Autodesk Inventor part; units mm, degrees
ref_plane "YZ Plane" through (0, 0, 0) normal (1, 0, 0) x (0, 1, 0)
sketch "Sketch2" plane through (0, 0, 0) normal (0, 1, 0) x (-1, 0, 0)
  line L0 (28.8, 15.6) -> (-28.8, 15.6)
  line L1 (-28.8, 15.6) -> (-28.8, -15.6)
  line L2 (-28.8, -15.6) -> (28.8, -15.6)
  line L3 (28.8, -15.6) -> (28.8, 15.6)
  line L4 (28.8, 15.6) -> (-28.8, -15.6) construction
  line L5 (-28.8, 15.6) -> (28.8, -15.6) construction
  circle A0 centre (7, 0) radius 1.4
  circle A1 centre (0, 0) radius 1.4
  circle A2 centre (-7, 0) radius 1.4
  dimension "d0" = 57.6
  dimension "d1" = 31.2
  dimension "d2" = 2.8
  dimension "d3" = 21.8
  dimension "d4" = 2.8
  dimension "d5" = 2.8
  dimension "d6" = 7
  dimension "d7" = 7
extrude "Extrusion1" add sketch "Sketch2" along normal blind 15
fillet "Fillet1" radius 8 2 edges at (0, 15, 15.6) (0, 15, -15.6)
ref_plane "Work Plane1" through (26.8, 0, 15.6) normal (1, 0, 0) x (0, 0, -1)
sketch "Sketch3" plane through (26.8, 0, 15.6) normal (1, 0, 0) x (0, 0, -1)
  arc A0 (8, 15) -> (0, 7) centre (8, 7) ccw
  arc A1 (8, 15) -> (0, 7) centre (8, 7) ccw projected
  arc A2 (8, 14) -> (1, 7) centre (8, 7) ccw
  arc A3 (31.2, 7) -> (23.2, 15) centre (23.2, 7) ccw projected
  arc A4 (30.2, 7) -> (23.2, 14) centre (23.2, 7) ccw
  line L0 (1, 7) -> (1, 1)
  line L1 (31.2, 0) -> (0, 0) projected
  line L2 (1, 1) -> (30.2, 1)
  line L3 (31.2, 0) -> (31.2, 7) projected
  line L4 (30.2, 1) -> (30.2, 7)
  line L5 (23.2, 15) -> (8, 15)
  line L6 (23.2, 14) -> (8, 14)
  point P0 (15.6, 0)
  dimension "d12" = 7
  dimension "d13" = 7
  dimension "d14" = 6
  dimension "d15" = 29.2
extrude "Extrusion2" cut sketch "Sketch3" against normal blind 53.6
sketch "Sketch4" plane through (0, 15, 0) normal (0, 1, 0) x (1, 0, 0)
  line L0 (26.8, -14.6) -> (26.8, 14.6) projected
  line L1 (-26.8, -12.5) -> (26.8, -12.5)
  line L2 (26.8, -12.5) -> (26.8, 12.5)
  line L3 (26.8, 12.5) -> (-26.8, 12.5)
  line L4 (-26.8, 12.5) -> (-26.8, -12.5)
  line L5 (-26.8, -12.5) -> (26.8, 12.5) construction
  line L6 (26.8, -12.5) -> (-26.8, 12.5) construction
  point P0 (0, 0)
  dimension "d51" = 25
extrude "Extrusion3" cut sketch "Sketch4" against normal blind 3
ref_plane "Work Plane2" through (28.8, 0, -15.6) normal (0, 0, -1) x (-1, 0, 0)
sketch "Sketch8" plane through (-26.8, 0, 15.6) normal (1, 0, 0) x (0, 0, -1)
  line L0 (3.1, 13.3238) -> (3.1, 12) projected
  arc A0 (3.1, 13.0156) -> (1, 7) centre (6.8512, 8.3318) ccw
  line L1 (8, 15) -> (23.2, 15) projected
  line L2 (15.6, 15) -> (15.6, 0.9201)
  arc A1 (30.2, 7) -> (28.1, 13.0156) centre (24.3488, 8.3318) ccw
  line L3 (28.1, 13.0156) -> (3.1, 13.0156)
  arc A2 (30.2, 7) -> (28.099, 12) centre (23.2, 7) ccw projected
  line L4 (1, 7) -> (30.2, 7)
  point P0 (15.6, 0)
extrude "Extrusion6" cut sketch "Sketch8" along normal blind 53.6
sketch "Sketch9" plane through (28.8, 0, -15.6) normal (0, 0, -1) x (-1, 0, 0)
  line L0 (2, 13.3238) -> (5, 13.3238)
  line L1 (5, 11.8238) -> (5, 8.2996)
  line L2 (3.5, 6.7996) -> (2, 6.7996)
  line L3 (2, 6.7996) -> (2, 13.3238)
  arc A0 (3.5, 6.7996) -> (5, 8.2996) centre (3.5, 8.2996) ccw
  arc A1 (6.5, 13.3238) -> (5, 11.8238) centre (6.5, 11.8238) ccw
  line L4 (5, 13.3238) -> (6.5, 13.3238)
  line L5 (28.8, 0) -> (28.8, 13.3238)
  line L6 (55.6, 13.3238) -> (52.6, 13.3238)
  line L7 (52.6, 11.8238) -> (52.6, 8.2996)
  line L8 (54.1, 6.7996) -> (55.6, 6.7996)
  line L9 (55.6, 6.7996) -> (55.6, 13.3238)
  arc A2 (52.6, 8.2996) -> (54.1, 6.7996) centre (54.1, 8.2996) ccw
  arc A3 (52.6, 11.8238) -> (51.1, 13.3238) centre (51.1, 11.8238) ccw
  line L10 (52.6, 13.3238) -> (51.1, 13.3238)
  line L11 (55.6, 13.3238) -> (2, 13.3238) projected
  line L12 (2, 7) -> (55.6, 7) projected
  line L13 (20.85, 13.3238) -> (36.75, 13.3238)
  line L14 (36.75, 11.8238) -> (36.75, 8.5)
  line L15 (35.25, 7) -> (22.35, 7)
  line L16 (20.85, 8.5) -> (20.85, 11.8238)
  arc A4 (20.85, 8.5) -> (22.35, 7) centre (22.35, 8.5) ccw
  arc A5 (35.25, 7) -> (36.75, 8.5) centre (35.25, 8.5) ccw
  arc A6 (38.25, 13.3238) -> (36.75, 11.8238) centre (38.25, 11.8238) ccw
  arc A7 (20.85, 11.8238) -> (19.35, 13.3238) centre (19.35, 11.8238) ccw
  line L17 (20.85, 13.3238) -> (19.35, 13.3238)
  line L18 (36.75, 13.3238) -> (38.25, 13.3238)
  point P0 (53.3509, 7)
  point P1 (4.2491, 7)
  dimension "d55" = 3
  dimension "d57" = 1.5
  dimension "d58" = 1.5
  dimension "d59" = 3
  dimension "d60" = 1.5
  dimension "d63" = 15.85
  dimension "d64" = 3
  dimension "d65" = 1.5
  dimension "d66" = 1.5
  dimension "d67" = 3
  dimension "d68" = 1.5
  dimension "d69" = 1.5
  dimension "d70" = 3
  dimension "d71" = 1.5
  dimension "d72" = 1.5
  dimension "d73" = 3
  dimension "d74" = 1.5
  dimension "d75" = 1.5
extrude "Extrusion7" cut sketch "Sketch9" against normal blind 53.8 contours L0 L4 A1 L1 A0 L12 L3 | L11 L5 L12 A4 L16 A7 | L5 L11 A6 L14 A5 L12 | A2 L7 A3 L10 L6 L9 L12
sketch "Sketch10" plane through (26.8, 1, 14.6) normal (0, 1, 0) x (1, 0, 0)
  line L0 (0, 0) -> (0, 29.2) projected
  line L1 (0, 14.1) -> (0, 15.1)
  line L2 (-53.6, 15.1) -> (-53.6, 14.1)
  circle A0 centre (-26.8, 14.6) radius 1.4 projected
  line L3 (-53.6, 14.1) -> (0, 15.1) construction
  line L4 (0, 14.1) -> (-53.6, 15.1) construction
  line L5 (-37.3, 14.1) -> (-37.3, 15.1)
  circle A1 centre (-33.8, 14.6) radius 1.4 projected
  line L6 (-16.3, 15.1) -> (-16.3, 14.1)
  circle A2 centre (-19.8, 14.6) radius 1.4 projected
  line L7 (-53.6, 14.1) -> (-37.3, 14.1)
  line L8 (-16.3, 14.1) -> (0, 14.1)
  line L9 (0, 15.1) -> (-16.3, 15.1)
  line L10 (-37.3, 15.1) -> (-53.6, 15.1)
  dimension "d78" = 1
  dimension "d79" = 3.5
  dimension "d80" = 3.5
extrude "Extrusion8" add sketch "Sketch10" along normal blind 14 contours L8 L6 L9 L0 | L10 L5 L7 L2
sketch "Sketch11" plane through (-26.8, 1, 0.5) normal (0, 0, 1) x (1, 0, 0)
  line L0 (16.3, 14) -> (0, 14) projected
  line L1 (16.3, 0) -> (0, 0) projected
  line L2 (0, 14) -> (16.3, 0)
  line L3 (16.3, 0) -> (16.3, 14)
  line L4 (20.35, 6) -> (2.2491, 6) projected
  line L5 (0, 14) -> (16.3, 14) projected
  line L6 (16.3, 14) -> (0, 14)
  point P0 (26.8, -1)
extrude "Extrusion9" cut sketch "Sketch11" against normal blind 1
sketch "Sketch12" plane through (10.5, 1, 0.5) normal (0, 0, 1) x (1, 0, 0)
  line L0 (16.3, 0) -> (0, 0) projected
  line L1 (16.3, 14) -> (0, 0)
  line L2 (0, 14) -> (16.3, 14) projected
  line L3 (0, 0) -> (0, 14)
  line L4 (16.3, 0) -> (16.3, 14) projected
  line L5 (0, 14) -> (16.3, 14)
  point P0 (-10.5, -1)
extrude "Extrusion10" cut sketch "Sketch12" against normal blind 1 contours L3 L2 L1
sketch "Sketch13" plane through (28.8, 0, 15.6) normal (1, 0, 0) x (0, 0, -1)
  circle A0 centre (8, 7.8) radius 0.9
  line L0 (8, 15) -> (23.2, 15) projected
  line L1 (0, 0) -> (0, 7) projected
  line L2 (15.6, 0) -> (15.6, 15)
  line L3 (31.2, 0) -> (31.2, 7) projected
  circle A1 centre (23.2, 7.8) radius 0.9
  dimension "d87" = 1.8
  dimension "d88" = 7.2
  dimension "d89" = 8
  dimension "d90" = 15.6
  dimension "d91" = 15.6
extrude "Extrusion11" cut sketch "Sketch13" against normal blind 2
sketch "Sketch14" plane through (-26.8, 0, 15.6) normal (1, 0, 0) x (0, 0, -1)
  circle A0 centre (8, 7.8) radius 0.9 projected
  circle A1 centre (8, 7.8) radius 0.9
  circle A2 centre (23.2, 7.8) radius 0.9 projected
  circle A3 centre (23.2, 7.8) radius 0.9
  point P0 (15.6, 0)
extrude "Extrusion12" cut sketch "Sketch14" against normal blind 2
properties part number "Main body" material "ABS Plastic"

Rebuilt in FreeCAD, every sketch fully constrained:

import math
import FreeCAD as App
import Part
import Sketcher

V = App.Vector


def edges_at(feature, points):
    """Names of the edges that pass closest to the given points."""
    edges = feature.Shape.Edges
    near = lambda p: min(range(len(edges)), key=lambda i: edges[i].distToShape(Part.Vertex(*p))[0])
    return sorted({f"Edge{near(p) + 1}" for p in points})

doc = App.newDocument("Part")
body = doc.addObject("PartDesign::Body", "Body")

sketch1 = body.newObject("Sketcher::SketchObject", "Sketch")
sketch1.AttachmentSupport = (doc.getObject("XZ_Plane"), [""])
sketch1.MapMode = "FlatFace"
sketch1.addGeometry([
    Part.LineSegment(V(-28.8, -15.6, 0), V(-28.8, 15.6, 0)),
    Part.LineSegment(V(-28.8, 15.6, 0), V(28.8, 15.6, 0)),
    Part.LineSegment(V(28.8, 15.6, 0), V(28.8, -15.6, 0)),
    Part.LineSegment(V(28.8, -15.6, 0), V(-28.8, -15.6, 0)),
    Part.Circle(V(7, 0, 0), V(0, 0, 1), 1.4),
    Part.Circle(V(0, 0, 0), V(0, 0, 1), 1.4),
    Part.Circle(V(-7, 0, 0), V(0, 0, 1), 1.4),
], False)
sketch1.addConstraint([
    Sketcher.Constraint("Coincident", 0, 2, 1, 1),
    Sketcher.Constraint("Coincident", 1, 2, 2, 1),
    Sketcher.Constraint("Coincident", 2, 2, 3, 1),
    Sketcher.Constraint("Coincident", 3, 2, 0, 1),
    Sketcher.Constraint("Vertical", 0),
    Sketcher.Constraint("Horizontal", 1),
    Sketcher.Constraint("Vertical", 2),
    Sketcher.Constraint("Horizontal", 3),
    Sketcher.Constraint("Coincident", 5, 3, -1, 1),
    Sketcher.Constraint("Equal", 4, 5),
    Sketcher.Constraint("Equal", 5, 6),
    Sketcher.Constraint("Symmetric", 4, 3, 6, 3, -1, 1),
    Sketcher.Constraint("Symmetric", 0, 2, 2, 2, -1, 1),
    Sketcher.Constraint("PointOnObject", 4, 3, -1),
    Sketcher.Constraint("Diameter", 4, 2.8),
    Sketcher.Constraint("DistanceX", 1, 1, 1, 2, 57.6),
    Sketcher.Constraint("DistanceY", 0, 1, 0, 2, 31.2),
    Sketcher.Constraint("DistanceX", -1, 1, 4, 3, 7.0),
])
pad1 = body.newObject("PartDesign::Pad", "Pad")
pad1.Profile = sketch1
pad1.Length = 15
pad1.Reversed = True
doc.recompute()

fillet = body.newObject("PartDesign::Fillet", "Fillet")
fillet.Base = (pad1, edges_at(pad1, [(0, 15, 15.6), (0, 15, -15.6)]))
fillet.Radius = 8

sketch2 = body.newObject("Sketcher::SketchObject", "Sketch001")
sketch2.AttachmentSupport = (doc.getObject("YZ_Plane"), [""])
sketch2.MapMode = "FlatFace"
sketch2.AttachmentOffset = App.Placement(V(0, 0, 26.8), App.Rotation())
sketch2.addGeometry([
    Part.LineSegment(V(14, -8, 0), V(14, 8, 0)),
    Part.ArcOfCircle(Part.Circle(V(7, 8, 0), V(0, 0, 1), 7), math.radians(0), math.radians(90)),
    Part.LineSegment(V(7, 15, 0), V(1, 15, 0)),
    Part.LineSegment(V(1, 15, 0), V(1, -15, 0)),
    Part.LineSegment(V(1, -15, 0), V(7, -15, 0)),
    Part.ArcOfCircle(Part.Circle(V(7, -8, 0), V(0, 0, 1), 7), math.radians(-90), math.radians(0)),
], False)
sketch2.addConstraint([
    Sketcher.Constraint("Tangent", 0, 2, 1, 1),
    Sketcher.Constraint("Tangent", 1, 2, 2, 1),
    Sketcher.Constraint("Coincident", 2, 2, 3, 1),
    Sketcher.Constraint("Coincident", 3, 2, 4, 1),
    Sketcher.Constraint("Tangent", 4, 2, 5, 1),
    Sketcher.Constraint("Tangent", 5, 2, 0, 1),
    Sketcher.Constraint("Vertical", 0),
    Sketcher.Constraint("Horizontal", 2),
    Sketcher.Constraint("Vertical", 3),
    Sketcher.Constraint("Horizontal", 4),
    Sketcher.Constraint("Equal", 1, 5),
    Sketcher.Constraint("Radius", 1, 7.0),
    Sketcher.Constraint("DistanceX", 2, 2, 2, 1, 6.0),
    Sketcher.Constraint("DistanceY", 3, 2, 3, 1, 29.2),
    Sketcher.Constraint("DistanceX", -1, 1, 1, 3, 7.0),
    Sketcher.Constraint("DistanceY", -1, 1, 1, 3, 7.6),
])
pocket1 = body.newObject("PartDesign::Pocket", "Pocket")
pocket1.Profile = sketch2
pocket1.Length = 53.6

sketch3 = body.newObject("Sketcher::SketchObject", "Sketch002")
sketch3.AttachmentSupport = (doc.getObject("XZ_Plane"), [""])
sketch3.MapMode = "FlatFace"
sketch3.AttachmentOffset = App.Placement(V(0, 0, -15), App.Rotation())
sketch3.addGeometry([
    Part.LineSegment(V(-27, 12, 0), V(27, 12, 0)),
    Part.LineSegment(V(27, 12, 0), V(27, -12, 0)),
    Part.LineSegment(V(27, -12, 0), V(-27, -12, 0)),
    Part.LineSegment(V(-27, -12, 0), V(-27, 12, 0)),
], False)
sketch3.addConstraint([
    Sketcher.Constraint("Coincident", 0, 2, 1, 1),
    Sketcher.Constraint("Coincident", 1, 2, 2, 1),
    Sketcher.Constraint("Coincident", 2, 2, 3, 1),
    Sketcher.Constraint("Coincident", 3, 2, 0, 1),
    Sketcher.Constraint("Horizontal", 0),
    Sketcher.Constraint("Vertical", 1),
    Sketcher.Constraint("Horizontal", 2),
    Sketcher.Constraint("Vertical", 3),
    Sketcher.Constraint("Symmetric", 0, 2, 2, 2, -1, 1),
    Sketcher.Constraint("DistanceY", 1, 2, 1, 1, 25.0),
    Sketcher.Constraint("DistanceX", 0, 1, 0, 2, 53.6),
])
pocket2 = body.newObject("PartDesign::Pocket", "Pocket001")
pocket2.Profile = sketch3
pocket2.Length = 3
pocket2.Reversed = True

sketch4 = body.newObject("Sketcher::SketchObject", "Sketch003")
sketch4.AttachmentSupport = (doc.getObject("YZ_Plane"), [""])
sketch4.MapMode = "FlatFace"
sketch4.AttachmentOffset = App.Placement(V(0, 0, -26.8), App.Rotation())
sketch4.addGeometry([
    Part.ArcOfCircle(Part.Circle(V(8, 9, 0), V(0, 0, 1), 6), math.radians(39), math.radians(103)),
    Part.LineSegment(V(7, 15, 0), V(7, -15, 0)),
    Part.ArcOfCircle(Part.Circle(V(8, -9, 0), V(0, 0, 1), 6), math.radians(-103), math.radians(-39)),
    Part.LineSegment(V(13, -12, 0), V(13, 12, 0)),
], False)
sketch4.addConstraint([
    Sketcher.Constraint("Coincident", 0, 2, 1, 1),
    Sketcher.Constraint("Coincident", 1, 2, 2, 1),
    Sketcher.Constraint("Coincident", 2, 2, 3, 1),
    Sketcher.Constraint("Coincident", 3, 2, 0, 1),
    Sketcher.Constraint("Vertical", 1),
    Sketcher.Constraint("Vertical", 3),
    Sketcher.Constraint("Equal", 0, 2),
    Sketcher.Constraint("Symmetric", 0, 3, 2, 3, -1),
    Sketcher.Constraint("DistanceY", 3, 1, 3, 2, 25.0),
    Sketcher.Constraint("DistanceY", 1, 2, 1, 1, 29.2),
    Sketcher.Constraint("DistanceX", -1, 1, 0, 2, 7.0),
    Sketcher.Constraint("Radius", 0, 6.0008),
    Sketcher.Constraint("DistanceX", -1, 1, 0, 3, 8.3318),
])
pocket3 = body.newObject("PartDesign::Pocket", "Pocket002")
pocket3.Profile = sketch4
pocket3.Length = 53.6
pocket3.Reversed = True

sketch5 = body.newObject("Sketcher::SketchObject", "Sketch004")
sketch5.AttachmentSupport = (doc.getObject("XY_Plane"), [""])
sketch5.MapMode = "FlatFace"
sketch5.AttachmentOffset = App.Placement(V(0, 0, -15.6), App.Rotation())
sketch5.addGeometry([
    Part.LineSegment(V(22.3, 13.3, 0), V(26.8, 13.3, 0)),
    Part.LineSegment(V(26.8, 13.3, 0), V(26.8, 7, 0)),
    Part.LineSegment(V(26.8, 7, 0), V(24.6, 7, 0)),
    Part.ArcOfCircle(Part.Circle(V(25.3, 8.3, 0), V(0, 0, 1), 1.5), math.radians(180), math.radians(240)),
    Part.LineSegment(V(23.8, 8.3, 0), V(23.8, 11.8, 0)),
    Part.ArcOfCircle(Part.Circle(V(22.3, 11.8, 0), V(0, 0, 1), 1.5), math.radians(0), math.radians(90)),
    Part.ArcOfCircle(Part.Circle(V(9.4, 11.8, 0), V(0, 0, 1), 1.5), math.radians(90), math.radians(180)),
    Part.LineSegment(V(8, 11.8, 0), V(8, 8.5, 0)),
    Part.ArcOfCircle(Part.Circle(V(6.5, 8.5, 0), V(0, 0, 1), 1.5), math.radians(-90), math.radians(0)),
    Part.LineSegment(V(6.5, 7, 0), V(-6.5, 7, 0)),
    Part.ArcOfCircle(Part.Circle(V(-6.5, 8.5, 0), V(0, 0, 1), 1.5), math.radians(180), math.radians(270)),
    Part.LineSegment(V(-8, 8.5, 0), V(-8, 11.8, 0)),
    Part.ArcOfCircle(Part.Circle(V(-9.4, 11.8, 0), V(0, 0, 1), 1.5), math.radians(0), math.radians(90)),
    Part.LineSegment(V(-9.4, 13.3, 0), V(9.4, 13.3, 0)),
    Part.ArcOfCircle(Part.Circle(V(-25.3, 8.3, 0), V(0, 0, 1), 1.5), math.radians(-60), math.radians(0)),
    Part.LineSegment(V(-24.6, 7, 0), V(-26.8, 7, 0)),
    Part.LineSegment(V(-26.8, 7, 0), V(-26.8, 13.3, 0)),
    Part.LineSegment(V(-26.8, 13.3, 0), V(-22.3, 13.3, 0)),
    Part.ArcOfCircle(Part.Circle(V(-22.3, 11.8, 0), V(0, 0, 1), 1.5), math.radians(90), math.radians(180)),
    Part.LineSegment(V(-23.8, 11.8, 0), V(-23.8, 8.3, 0)),
], False)
sketch5.addConstraint([
    Sketcher.Constraint("Coincident", 0, 2, 1, 1),
    Sketcher.Constraint("Coincident", 1, 2, 2, 1),
    Sketcher.Constraint("Coincident", 2, 2, 3, 2),
    Sketcher.Constraint("Tangent", 3, 1, 4, 1),
    Sketcher.Constraint("Tangent", 4, 2, 5, 1),
    Sketcher.Constraint("Tangent", 5, 2, 0, 1),
    Sketcher.Constraint("Tangent", 6, 2, 7, 1),
    Sketcher.Constraint("Tangent", 7, 2, 8, 2),
    Sketcher.Constraint("Tangent", 8, 1, 9, 1),
    Sketcher.Constraint("Tangent", 9, 2, 10, 2),
    Sketcher.Constraint("Tangent", 10, 1, 11, 1),
    Sketcher.Constraint("Tangent", 11, 2, 12, 1),
    Sketcher.Constraint("Tangent", 12, 2, 13, 1),
    Sketcher.Constraint("Tangent", 13, 2, 6, 1),
    Sketcher.Constraint("Coincident", 14, 1, 15, 1),
    Sketcher.Constraint("Coincident", 15, 2, 16, 1),
    Sketcher.Constraint("Coincident", 16, 2, 17, 1),
    Sketcher.Constraint("Tangent", 17, 2, 18, 1),
    Sketcher.Constraint("Tangent", 18, 2, 19, 1),
    Sketcher.Constraint("Tangent", 19, 2, 14, 2),
    Sketcher.Constraint("Horizontal", 0),
    Sketcher.Constraint("Vertical", 1),
    Sketcher.Constraint("Horizontal", 2),
    Sketcher.Constraint("Vertical", 4),
    Sketcher.Constraint("Vertical", 7),
    Sketcher.Constraint("Horizontal", 9),
    Sketcher.Constraint("Vertical", 11),
    Sketcher.Constraint("Horizontal", 13),
    Sketcher.Constraint("Horizontal", 15),
    Sketcher.Constraint("Vertical", 16),
    Sketcher.Constraint("Horizontal", 17),
    Sketcher.Constraint("Vertical", 19),
    Sketcher.Constraint("Equal", 3, 5),
    Sketcher.Constraint("Equal", 5, 6),
    Sketcher.Constraint("Equal", 6, 8),
    Sketcher.Constraint("Equal", 8, 10),
    Sketcher.Constraint("Equal", 10, 12),
    Sketcher.Constraint("Equal", 12, 14),
    Sketcher.Constraint("Equal", 14, 18),
    Sketcher.Constraint("Symmetric", 3, 3, 14, 3, -2),
    Sketcher.Constraint("Symmetric", 1, 2, 15, 2, -2),
    Sketcher.Constraint("Horizontal", 5, 3, 6, 3),
    Sketcher.Constraint("Horizontal", 12, 3, 18, 3),
    Sketcher.Constraint("Horizontal", 2, 2, 8, 1),
    Sketcher.Constraint("Radius", 3, 1.5),
    Sketcher.Constraint("DistanceX", 3, 1, 1, 2, 3.0),
    Sketcher.Constraint("DistanceX", 6, 3, 3, 3, 15.85),
    Sketcher.Constraint("DistanceX", 14, 3, 12, 3, 15.85),
    Sketcher.Constraint("DistanceX", 9, 2, 9, 1, 12.9),
    Sketcher.Constraint("DistanceY", -1, 1, 1, 2, 7.0),
    Sketcher.Constraint("DistanceX", 2, 2, 2, 1, 2.249),
    Sketcher.Constraint("DistanceY", 1, 2, 1, 1, 6.3238),
])
pocket4 = body.newObject("PartDesign::Pocket", "Pocket003")
pocket4.Profile = sketch5
pocket4.Length = 53.8
pocket4.Reversed = True

sketch6 = body.newObject("Sketcher::SketchObject", "Sketch005")
sketch6.AttachmentSupport = (doc.getObject("XZ_Plane"), [""])
sketch6.MapMode = "FlatFace"
sketch6.AttachmentOffset = App.Placement(V(0, 0, -1), App.Rotation())
sketch6.addGeometry([
    Part.LineSegment(V(10.5, 0.5, 0), V(26.8, 0.5, 0)),
    Part.LineSegment(V(26.8, 0.5, 0), V(26.8, -0.5, 0)),
    Part.LineSegment(V(26.8, -0.5, 0), V(10.5, -0.5, 0)),
    Part.LineSegment(V(10.5, -0.5, 0), V(10.5, 0.5, 0)),
    Part.LineSegment(V(-10.5, -0.5, 0), V(-26.8, -0.5, 0)),
    Part.LineSegment(V(-26.8, -0.5, 0), V(-26.8, 0.5, 0)),
    Part.LineSegment(V(-26.8, 0.5, 0), V(-10.5, 0.5, 0)),
    Part.LineSegment(V(-10.5, 0.5, 0), V(-10.5, -0.5, 0)),
], False)
sketch6.addConstraint([
    Sketcher.Constraint("Coincident", 0, 2, 1, 1),
    Sketcher.Constraint("Coincident", 1, 2, 2, 1),
    Sketcher.Constraint("Coincident", 2, 2, 3, 1),
    Sketcher.Constraint("Coincident", 3, 2, 0, 1),
    Sketcher.Constraint("Coincident", 4, 2, 5, 1),
    Sketcher.Constraint("Coincident", 5, 2, 6, 1),
    Sketcher.Constraint("Coincident", 6, 2, 7, 1),
    Sketcher.Constraint("Coincident", 7, 2, 4, 1),
    Sketcher.Constraint("Horizontal", 0),
    Sketcher.Constraint("Vertical", 1),
    Sketcher.Constraint("Horizontal", 2),
    Sketcher.Constraint("Vertical", 3),
    Sketcher.Constraint("Horizontal", 4),
    Sketcher.Constraint("Vertical", 5),
    Sketcher.Constraint("Horizontal", 6),
    Sketcher.Constraint("Vertical", 7),
    Sketcher.Constraint("Symmetric", 0, 2, 4, 2, -1, 1),
    Sketcher.Constraint("Symmetric", 2, 2, 6, 2, -1, 1),
    Sketcher.Constraint("Horizontal", 2, 2, 4, 2),
    Sketcher.Constraint("DistanceY", 1, 2, 1, 1, 1.0),
    Sketcher.Constraint("DistanceX", 0, 1, 0, 2, 16.3),
    Sketcher.Constraint("DistanceX", 6, 2, 3, 2, 21.0),
])
pad2 = body.newObject("PartDesign::Pad", "Pad001")
pad2.Profile = sketch6
pad2.Length = 14
pad2.Reversed = True

sketch7 = body.newObject("Sketcher::SketchObject", "Sketch006")
sketch7.AttachmentSupport = (doc.getObject("XY_Plane"), [""])
sketch7.MapMode = "FlatFace"
sketch7.AttachmentOffset = App.Placement(V(0, 0, 0.5), App.Rotation())
sketch7.addGeometry([
    Part.LineSegment(V(-10, 15, 0), V(-27, 15, 0)),
    Part.LineSegment(V(-27, 15, 0), V(-10, 1, 0)),
    Part.LineSegment(V(-10, 1, 0), V(-10, 15, 0)),
], False)
sketch7.addConstraint([
    Sketcher.Constraint("Coincident", 0, 2, 1, 1),
    Sketcher.Constraint("Coincident", 1, 2, 2, 1),
    Sketcher.Constraint("Coincident", 2, 2, 0, 1),
    Sketcher.Constraint("Horizontal", 0),
    Sketcher.Constraint("Vertical", 2),
    Sketcher.Constraint("DistanceY", 2, 1, 2, 2, 14.0),
    Sketcher.Constraint("DistanceX", 0, 2, 0, 1, 16.3),
    Sketcher.Constraint("DistanceY", -1, 1, 0, 2, 15.0),
    Sketcher.Constraint("DistanceX", 0, 2, -1, 1, 26.8),
])
pocket5 = body.newObject("PartDesign::Pocket", "Pocket004")
pocket5.Profile = sketch7
pocket5.Length = 1

sketch8 = body.newObject("Sketcher::SketchObject", "Sketch007")
sketch8.AttachmentSupport = (doc.getObject("XY_Plane"), [""])
sketch8.MapMode = "FlatFace"
sketch8.AttachmentOffset = App.Placement(V(0, 0, 0.5), App.Rotation())
sketch8.addGeometry([
    Part.LineSegment(V(10, 15, 0), V(10, 1, 0)),
    Part.LineSegment(V(10, 1, 0), V(27, 15, 0)),
    Part.LineSegment(V(27, 15, 0), V(10, 15, 0)),
], False)
sketch8.addConstraint([
    Sketcher.Constraint("Coincident", 0, 2, 1, 1),
    Sketcher.Constraint("Coincident", 1, 2, 2, 1),
    Sketcher.Constraint("Coincident", 2, 2, 0, 1),
    Sketcher.Constraint("Vertical", 0),
    Sketcher.Constraint("Horizontal", 2),
    Sketcher.Constraint("DistanceY", 0, 2, 0, 1, 14.0),
    Sketcher.Constraint("DistanceX", 2, 2, 2, 1, 16.3),
    Sketcher.Constraint("DistanceY", -1, 1, 0, 2, 1.0),
    Sketcher.Constraint("DistanceX", -1, 1, 0, 2, 10.5),
])
pocket6 = body.newObject("PartDesign::Pocket", "Pocket005")
pocket6.Profile = sketch8
pocket6.Length = 1

sketch9 = body.newObject("Sketcher::SketchObject", "Sketch008")
sketch9.AttachmentSupport = (doc.getObject("YZ_Plane"), [""])
sketch9.MapMode = "FlatFace"
sketch9.AttachmentOffset = App.Placement(V(0, 0, 28.8), App.Rotation())
sketch9.addGeometry([
    Part.Circle(V(7.8, 7.6, 0), V(0, 0, 1), 0.9),
    Part.Circle(V(7.8, -7.6, 0), V(0, 0, 1), 0.9),
], False)
sketch9.addConstraint([
    Sketcher.Constraint("Equal", 0, 1),
    Sketcher.Constraint("Symmetric", 0, 3, 1, 3, -1),
    Sketcher.Constraint("Diameter", 0, 1.8),
    Sketcher.Constraint("DistanceX", -1, 1, 0, 3, 7.8),
    Sketcher.Constraint("DistanceY", -1, 1, 0, 3, 7.6),
])
pocket7 = body.newObject("PartDesign::Pocket", "Pocket006")
pocket7.Profile = sketch9
pocket7.Length = 2

sketch10 = body.newObject("Sketcher::SketchObject", "Sketch009")
sketch10.AttachmentSupport = (doc.getObject("YZ_Plane"), [""])
sketch10.MapMode = "FlatFace"
sketch10.AttachmentOffset = App.Placement(V(0, 0, -26.8), App.Rotation())
sketch10.addGeometry([
    Part.Circle(V(7.8, 7.6, 0), V(0, 0, 1), 0.9),
    Part.Circle(V(7.8, -7.6, 0), V(0, 0, 1), 0.9),
], False)
sketch10.addConstraint([
    Sketcher.Constraint("Equal", 0, 1),
    Sketcher.Constraint("Symmetric", 0, 3, 1, 3, -1),
    Sketcher.Constraint("Diameter", 0, 1.8),
    Sketcher.Constraint("DistanceX", -1, 1, 0, 3, 7.8),
    Sketcher.Constraint("DistanceY", -1, 1, 0, 3, 7.6),
])
pocket8 = body.newObject("PartDesign::Pocket", "Pocket007")
pocket8.Profile = sketch10
pocket8.Length = 2

doc.recompute()
